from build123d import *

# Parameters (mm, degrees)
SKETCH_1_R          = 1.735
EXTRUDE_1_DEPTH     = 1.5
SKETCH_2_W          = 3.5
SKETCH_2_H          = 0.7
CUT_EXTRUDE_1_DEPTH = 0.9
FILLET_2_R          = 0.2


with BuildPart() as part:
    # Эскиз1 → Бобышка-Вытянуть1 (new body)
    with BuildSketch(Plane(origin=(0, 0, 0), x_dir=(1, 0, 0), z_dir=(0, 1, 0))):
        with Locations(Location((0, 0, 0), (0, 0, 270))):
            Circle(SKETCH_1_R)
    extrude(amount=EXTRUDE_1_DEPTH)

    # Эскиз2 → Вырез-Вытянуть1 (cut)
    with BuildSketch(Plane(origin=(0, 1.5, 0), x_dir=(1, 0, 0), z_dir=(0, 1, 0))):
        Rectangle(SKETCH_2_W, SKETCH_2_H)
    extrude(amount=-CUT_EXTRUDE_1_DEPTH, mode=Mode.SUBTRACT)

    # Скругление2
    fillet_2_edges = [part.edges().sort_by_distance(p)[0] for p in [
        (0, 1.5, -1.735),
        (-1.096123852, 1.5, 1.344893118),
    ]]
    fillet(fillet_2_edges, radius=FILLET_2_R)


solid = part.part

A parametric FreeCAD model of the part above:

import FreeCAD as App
import Part
import Sketcher
Q = App.Units.Quantity


def edges_at(feature, points):
    """Names of the edges that pass closest to the given points."""
    edges = feature.Shape.Edges
    near = lambda p: min(range(len(edges)), key=lambda i: edges[i].distToShape(Part.Vertex(*p))[0])
    return sorted({f"Edge{near(p) + 1}" for p in points})

doc = App.newDocument("Part")
body = doc.addObject("PartDesign::Body", "Body")

sketch1 = doc.addObject("Sketcher::SketchObject", "Sketch")
body.addObject(sketch1)
sketch1.AttachmentSupport = (doc.XZ_Plane, [""])
sketch1.MapMode = "FlatFace"
sketch1.addGeometry(Part.Circle(App.Vector(0, 0, 0), App.Vector(0, 0, 1), 1.7), False)
sketch1.addConstraint(Sketcher.Constraint("Coincident", 0, 3, -1, 1))
sketch1.addConstraint(Sketcher.Constraint("Diameter", 0, Q("3.47 mm")))
pad1 = doc.addObject("PartDesign::Pad", "Pad")
body.addObject(pad1)
pad1.Profile = sketch1
pad1.Length = 1.5
pad1.Reversed = True

sketch2 = doc.addObject("Sketcher::SketchObject", "Sketch001")
body.addObject(sketch2)
sketch2.AttachmentSupport = (doc.XZ_Plane, [""])
sketch2.MapMode = "FlatFace"
sketch2.AttachmentOffset = App.Placement(App.Vector(0, 0, -1.5), App.Rotation())
sketch2.addGeometry(Part.LineSegment(App.Vector(-1.8, -0.3, 0), App.Vector(-1.8, 0.3, 0)), False)
sketch2.addGeometry(Part.LineSegment(App.Vector(-1.8, 0.3, 0), App.Vector(1.8, 0.3, 0)), False)
sketch2.addGeometry(Part.LineSegment(App.Vector(1.8, 0.3, 0), App.Vector(1.8, -0.3, 0)), False)
sketch2.addGeometry(Part.LineSegment(App.Vector(1.8, -0.3, 0), App.Vector(-1.8, -0.3, 0)), False)
sketch2.addConstraint(Sketcher.Constraint("Coincident", 0, 2, 1, 1))
sketch2.addConstraint(Sketcher.Constraint("Coincident", 1, 2, 2, 1))
sketch2.addConstraint(Sketcher.Constraint("Coincident", 2, 2, 3, 1))
sketch2.addConstraint(Sketcher.Constraint("Coincident", 3, 2, 0, 1))
sketch2.addConstraint(Sketcher.Constraint("Vertical", 0))
sketch2.addConstraint(Sketcher.Constraint("Horizontal", 1))
sketch2.addConstraint(Sketcher.Constraint("Vertical", 2))
sketch2.addConstraint(Sketcher.Constraint("Horizontal", 3))
sketch2.addConstraint(Sketcher.Constraint("Symmetric", 0, 2, 2, 2, -1, 1))
sketch2.addConstraint(Sketcher.Constraint("DistanceX", 1, 1, 1, 2, Q("3.5 mm")))
sketch2.addConstraint(Sketcher.Constraint("DistanceY", 0, 1, 0, 2, Q("0.7 mm")))
pocket1 = doc.addObject("PartDesign::Pocket", "Pocket")
body.addObject(pocket1)
pocket1.Profile = sketch2
pocket1.Length = 0.9
pocket1.Reversed = True
doc.recompute()

fillet = doc.addObject("PartDesign::Fillet", "Fillet")
body.addObject(fillet)
fillet.Base = (pocket1, edges_at(pocket1, [(0, 1.5, -1.735), (-1.096, 1.5, 1.345)]))
fillet.Radius = 0.2

doc.recompute()
